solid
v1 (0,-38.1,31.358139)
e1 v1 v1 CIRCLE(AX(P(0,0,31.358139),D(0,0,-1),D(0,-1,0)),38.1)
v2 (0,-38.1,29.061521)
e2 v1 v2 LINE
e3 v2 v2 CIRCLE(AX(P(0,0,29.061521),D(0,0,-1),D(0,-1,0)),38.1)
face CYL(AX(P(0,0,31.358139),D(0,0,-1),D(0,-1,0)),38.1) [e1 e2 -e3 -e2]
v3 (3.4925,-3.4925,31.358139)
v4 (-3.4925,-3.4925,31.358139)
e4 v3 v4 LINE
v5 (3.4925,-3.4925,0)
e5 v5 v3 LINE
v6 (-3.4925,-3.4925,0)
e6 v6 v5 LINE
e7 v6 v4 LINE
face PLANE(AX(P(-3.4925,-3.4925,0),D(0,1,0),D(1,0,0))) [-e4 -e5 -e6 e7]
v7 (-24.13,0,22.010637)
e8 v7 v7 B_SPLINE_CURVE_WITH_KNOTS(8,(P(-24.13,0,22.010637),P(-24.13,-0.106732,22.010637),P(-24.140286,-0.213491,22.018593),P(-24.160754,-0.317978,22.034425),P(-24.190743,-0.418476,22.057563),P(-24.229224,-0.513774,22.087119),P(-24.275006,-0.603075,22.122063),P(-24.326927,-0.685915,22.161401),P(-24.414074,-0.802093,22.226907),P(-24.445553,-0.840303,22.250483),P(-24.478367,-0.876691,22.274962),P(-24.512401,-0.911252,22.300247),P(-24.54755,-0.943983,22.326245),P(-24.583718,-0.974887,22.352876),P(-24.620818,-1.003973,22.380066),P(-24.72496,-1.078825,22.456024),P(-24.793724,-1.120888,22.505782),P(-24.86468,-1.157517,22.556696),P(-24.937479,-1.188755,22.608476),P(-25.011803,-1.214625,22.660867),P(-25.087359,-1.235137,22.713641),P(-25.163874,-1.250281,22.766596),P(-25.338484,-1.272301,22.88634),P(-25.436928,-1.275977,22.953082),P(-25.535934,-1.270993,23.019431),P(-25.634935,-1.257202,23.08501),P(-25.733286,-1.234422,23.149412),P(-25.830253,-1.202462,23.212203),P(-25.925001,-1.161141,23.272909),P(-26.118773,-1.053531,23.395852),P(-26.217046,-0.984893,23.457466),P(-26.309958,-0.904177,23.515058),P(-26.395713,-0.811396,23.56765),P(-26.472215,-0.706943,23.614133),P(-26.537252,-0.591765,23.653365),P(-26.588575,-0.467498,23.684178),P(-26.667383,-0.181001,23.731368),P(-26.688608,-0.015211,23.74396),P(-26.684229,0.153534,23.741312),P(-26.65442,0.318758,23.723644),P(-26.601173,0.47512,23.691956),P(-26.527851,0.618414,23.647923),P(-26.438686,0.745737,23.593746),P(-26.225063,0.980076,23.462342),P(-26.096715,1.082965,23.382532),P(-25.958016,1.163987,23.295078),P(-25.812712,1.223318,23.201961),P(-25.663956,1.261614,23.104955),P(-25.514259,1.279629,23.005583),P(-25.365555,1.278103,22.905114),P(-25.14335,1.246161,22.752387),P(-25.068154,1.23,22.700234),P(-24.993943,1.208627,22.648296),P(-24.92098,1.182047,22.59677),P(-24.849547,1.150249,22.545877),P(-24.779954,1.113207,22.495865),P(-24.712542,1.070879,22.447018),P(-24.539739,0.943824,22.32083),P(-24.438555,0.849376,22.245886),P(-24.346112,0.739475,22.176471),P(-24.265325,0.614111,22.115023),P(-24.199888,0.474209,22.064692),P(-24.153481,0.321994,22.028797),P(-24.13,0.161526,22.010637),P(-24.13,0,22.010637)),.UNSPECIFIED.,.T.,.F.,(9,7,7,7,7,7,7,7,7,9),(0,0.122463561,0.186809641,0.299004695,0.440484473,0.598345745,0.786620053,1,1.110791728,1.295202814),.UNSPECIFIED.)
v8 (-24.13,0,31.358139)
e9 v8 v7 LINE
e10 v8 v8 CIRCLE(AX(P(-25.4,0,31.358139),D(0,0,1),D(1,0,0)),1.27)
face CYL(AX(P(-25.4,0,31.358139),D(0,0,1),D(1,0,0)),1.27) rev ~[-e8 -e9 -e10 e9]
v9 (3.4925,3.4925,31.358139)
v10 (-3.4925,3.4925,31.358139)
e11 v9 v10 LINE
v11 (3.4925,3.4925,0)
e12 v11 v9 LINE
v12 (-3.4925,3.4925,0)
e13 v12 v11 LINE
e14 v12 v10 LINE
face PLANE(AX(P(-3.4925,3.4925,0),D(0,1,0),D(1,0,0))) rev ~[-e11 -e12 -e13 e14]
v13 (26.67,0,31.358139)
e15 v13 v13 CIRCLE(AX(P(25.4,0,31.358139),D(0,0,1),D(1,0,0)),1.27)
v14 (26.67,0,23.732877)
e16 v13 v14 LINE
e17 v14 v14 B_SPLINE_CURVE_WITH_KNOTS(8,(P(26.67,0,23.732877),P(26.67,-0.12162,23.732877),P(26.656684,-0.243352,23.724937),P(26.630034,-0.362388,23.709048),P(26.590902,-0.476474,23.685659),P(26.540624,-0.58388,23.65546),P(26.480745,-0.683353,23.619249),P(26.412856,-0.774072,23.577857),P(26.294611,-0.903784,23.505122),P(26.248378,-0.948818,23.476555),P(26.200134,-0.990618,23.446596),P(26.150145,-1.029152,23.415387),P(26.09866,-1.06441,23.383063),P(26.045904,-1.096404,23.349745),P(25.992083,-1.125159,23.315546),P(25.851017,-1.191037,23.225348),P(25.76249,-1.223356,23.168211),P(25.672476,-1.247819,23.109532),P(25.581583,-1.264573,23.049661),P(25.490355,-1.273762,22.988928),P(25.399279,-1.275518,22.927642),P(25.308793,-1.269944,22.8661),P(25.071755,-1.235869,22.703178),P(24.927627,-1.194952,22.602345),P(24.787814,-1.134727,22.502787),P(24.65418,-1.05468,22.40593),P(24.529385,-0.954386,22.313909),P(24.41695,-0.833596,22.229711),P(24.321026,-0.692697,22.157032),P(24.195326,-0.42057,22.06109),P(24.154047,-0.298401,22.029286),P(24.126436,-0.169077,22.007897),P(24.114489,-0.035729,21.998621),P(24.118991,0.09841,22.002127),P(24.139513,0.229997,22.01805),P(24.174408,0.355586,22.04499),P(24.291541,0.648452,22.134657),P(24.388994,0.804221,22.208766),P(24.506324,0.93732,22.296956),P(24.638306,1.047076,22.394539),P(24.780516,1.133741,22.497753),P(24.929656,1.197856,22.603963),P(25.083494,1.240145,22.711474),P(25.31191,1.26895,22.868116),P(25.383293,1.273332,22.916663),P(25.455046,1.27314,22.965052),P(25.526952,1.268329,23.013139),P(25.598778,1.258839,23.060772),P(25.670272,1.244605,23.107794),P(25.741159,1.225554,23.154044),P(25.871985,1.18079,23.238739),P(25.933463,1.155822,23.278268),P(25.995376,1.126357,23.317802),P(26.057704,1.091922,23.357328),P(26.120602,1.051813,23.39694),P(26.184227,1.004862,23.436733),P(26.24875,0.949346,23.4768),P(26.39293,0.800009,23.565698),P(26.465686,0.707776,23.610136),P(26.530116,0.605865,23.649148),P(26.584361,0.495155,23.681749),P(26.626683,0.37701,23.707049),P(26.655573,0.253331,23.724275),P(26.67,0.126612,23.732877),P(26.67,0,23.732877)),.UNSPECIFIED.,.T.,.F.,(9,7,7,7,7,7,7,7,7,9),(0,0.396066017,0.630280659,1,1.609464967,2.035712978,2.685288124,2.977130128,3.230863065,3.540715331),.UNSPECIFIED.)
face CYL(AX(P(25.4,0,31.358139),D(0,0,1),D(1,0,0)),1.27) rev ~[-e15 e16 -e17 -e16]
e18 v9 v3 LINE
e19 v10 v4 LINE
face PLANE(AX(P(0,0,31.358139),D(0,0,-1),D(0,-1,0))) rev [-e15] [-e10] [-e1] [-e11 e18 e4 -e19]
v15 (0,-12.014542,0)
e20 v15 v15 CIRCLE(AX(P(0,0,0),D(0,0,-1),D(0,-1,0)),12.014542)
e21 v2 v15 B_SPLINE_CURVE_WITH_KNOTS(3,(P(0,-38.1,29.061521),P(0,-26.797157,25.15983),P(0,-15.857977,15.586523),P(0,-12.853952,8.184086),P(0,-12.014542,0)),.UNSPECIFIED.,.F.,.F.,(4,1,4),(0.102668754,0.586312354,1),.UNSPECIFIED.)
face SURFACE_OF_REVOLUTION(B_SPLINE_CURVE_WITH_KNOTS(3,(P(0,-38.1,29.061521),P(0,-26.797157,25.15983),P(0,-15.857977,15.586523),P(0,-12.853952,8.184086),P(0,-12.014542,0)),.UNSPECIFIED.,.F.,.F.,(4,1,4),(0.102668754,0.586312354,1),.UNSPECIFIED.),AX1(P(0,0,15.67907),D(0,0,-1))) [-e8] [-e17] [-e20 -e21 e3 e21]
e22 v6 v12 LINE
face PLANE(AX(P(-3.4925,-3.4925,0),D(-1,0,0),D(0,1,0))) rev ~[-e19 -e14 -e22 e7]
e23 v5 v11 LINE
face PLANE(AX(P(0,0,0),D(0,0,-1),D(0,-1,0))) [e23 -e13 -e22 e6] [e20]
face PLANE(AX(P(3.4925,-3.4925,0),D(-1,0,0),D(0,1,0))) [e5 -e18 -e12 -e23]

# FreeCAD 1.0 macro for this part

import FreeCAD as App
import Part
import Sketcher
Q = App.Units.Quantity


def add_polygon(sketch, points):
    """Adds a closed chain of lines whose ends are joined by coincident constraints."""
    first, n = sketch.GeometryCount, len(points)
    for a, b in zip(points, points[1:] + points[:1]):
        sketch.addGeometry(Part.LineSegment(App.Vector(*a, 0), App.Vector(*b, 0)), False)
    for i in range(n):
        sketch.addConstraint(Sketcher.Constraint("Coincident", first + i, 2, first + (i + 1) % n, 1))

doc = App.newDocument("Part")
body = doc.addObject("PartDesign::Body", "Body")

sketch1 = body.newObject("Sketcher::SketchObject", "Sketch")
sketch1.AttachmentSupport = (doc.getObject("YZ_Plane"), [""])
sketch1.MapMode = "FlatFace"
sketch1.addGeometry(Part.LineSegment(App.Vector(0, 0, 0), App.Vector(0, 31.358139, 0)), False)
sketch1.addGeometry(Part.LineSegment(App.Vector(0, 31.358139, 0), App.Vector(-38.1, 31.358139, 0)), False)
sketch1.addGeometry(Part.LineSegment(App.Vector(-38.1, 31.358139, 0), App.Vector(-38.1, 29.061521, 0)), False)
sketch1.addGeometry(Part.BSplineCurve([App.Vector(-38.1, 29.061521, 0), App.Vector(-26.797157, 25.15983, 0), App.Vector(-15.857977, 15.586523, 0), App.Vector(-12.853952, 8.184086, 0), App.Vector(-12.014542, 0, 0)], [4, 1, 4], [0.102668754, 0.586312354, 1], False, 3, [1, 1, 1, 1, 1], False), False)
sketch1.addGeometry(Part.LineSegment(App.Vector(-12.014542, 0, 0), App.Vector(0, 0, 0)), False)
sketch1.addConstraint(Sketcher.Constraint("Block", 3))
sketch1.addConstraint(Sketcher.Constraint("Coincident", 0, 2, 1, 1))
sketch1.addConstraint(Sketcher.Constraint("Coincident", 1, 2, 2, 1))
sketch1.addConstraint(Sketcher.Constraint("Coincident", 2, 2, 3, 1))
sketch1.addConstraint(Sketcher.Constraint("Coincident", 3, 2, 4, 1))
sketch1.addConstraint(Sketcher.Constraint("Coincident", 4, 2, 0, 1))
sketch1.addConstraint(Sketcher.Constraint("Vertical", 0))
sketch1.addConstraint(Sketcher.Constraint("Horizontal", 1))
sketch1.addConstraint(Sketcher.Constraint("Vertical", 2))
sketch1.addConstraint(Sketcher.Constraint("Horizontal", 4))
sketch1.addConstraint(Sketcher.Constraint("PointOnObject", 0, 2, -2))
sketch1.addConstraint(Sketcher.Constraint("DistanceY", 0, 1, 0, 2, 31.358139))
revolution = body.newObject("PartDesign::Revolution", "Revolution")
revolution.Profile = sketch1
revolution.ReferenceAxis = (sketch1, ["V_Axis"])
revolution.Angle = 360

sketch2 = body.newObject("Sketcher::SketchObject", "Sketch001")
sketch2.AttachmentSupport = (doc.getObject("XY_Plane"), [""])
sketch2.MapMode = "FlatFace"
add_polygon(sketch2, [(-3, 3), (-3, -3), (3, -3), (3, 3)])
sketch2.addConstraint(Sketcher.Constraint("Vertical", 0))
sketch2.addConstraint(Sketcher.Constraint("Horizontal", 1))
sketch2.addConstraint(Sketcher.Constraint("Vertical", 2))
sketch2.addConstraint(Sketcher.Constraint("Horizontal", 3))
sketch2.addConstraint(Sketcher.Constraint("Symmetric", 0, 2, 2, 2, -1, 1))
sketch2.addConstraint(Sketcher.Constraint("Equal", 3, 0))
sketch2.addConstraint(Sketcher.Constraint("DistanceX", 1, 1, 1, 2, Q("0.275 in")))
pocket1 = body.newObject("PartDesign::Pocket", "Pocket")
pocket1.Profile = sketch2
pocket1.Type = "ThroughAll"
pocket1.Reversed = True

sketch3 = body.newObject("Sketcher::SketchObject", "Sketch002")
sketch3.AttachmentSupport = (doc.getObject("XY_Plane"), [""])
sketch3.MapMode = "FlatFace"
sketch3.AttachmentOffset = App.Placement(App.Vector(0, 0, 31.358139), App.Rotation())
sketch3.addGeometry(Part.Circle(App.Vector(-25.4, 0, 0), App.Vector(0, 0, 1), 1.3), False)
sketch3.addGeometry(Part.Circle(App.Vector(25.4, 0, 0), App.Vector(0, 0, 1), 1.3), False)
sketch3.addConstraint(Sketcher.Constraint("Equal", 0, 1))
sketch3.addConstraint(Sketcher.Constraint("Symmetric", 0, 3, 1, 3, -1, 1))
sketch3.addConstraint(Sketcher.Constraint("PointOnObject", 0, 3, -1))
sketch3.addConstraint(Sketcher.Constraint("Diameter", 0, Q("0.1 in")))
sketch3.addConstraint(Sketcher.Constraint("DistanceX", 0, 3, -1, 1, Q("1 in")))
pocket2 = body.newObject("PartDesign::Pocket", "Pocket001")
pocket2.Profile = sketch3
pocket2.Type = "ThroughAll"

doc.recompute()
